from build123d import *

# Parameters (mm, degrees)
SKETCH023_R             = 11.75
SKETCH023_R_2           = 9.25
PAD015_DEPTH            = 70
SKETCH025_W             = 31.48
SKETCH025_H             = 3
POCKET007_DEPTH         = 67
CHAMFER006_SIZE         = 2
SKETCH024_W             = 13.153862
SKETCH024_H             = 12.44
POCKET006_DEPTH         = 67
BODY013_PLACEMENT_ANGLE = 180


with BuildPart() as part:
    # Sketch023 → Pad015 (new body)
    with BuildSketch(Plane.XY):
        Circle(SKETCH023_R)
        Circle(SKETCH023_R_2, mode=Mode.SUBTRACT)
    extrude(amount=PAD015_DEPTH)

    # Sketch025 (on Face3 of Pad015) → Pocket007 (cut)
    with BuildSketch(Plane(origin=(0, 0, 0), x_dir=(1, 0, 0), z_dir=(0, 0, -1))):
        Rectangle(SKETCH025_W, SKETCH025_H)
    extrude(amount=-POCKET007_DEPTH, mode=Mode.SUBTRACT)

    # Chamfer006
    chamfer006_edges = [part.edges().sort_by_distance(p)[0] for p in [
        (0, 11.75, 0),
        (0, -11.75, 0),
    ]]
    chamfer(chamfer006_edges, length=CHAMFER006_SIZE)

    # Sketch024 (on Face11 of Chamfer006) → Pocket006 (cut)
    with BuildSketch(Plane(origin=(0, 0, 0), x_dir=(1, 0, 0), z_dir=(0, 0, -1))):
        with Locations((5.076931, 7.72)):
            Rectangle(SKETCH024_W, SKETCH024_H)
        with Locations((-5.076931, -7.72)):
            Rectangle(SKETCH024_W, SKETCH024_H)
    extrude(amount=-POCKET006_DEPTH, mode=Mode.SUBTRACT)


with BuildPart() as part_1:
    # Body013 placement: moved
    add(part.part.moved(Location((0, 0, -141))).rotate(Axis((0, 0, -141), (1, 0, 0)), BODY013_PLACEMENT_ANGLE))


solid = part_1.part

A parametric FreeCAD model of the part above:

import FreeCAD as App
import Part
import Sketcher


def edges_at(feature, points):
    """Names of the edges that pass closest to the given points."""
    edges = feature.Shape.Edges
    near = lambda p: min(range(len(edges)), key=lambda i: edges[i].distToShape(Part.Vertex(*p))[0])
    return sorted({f"Edge{near(p) + 1}" for p in points})

doc = App.newDocument("Part")
params = doc.addObject("Spreadsheet::Sheet", "Params")
for row, (alias, value) in enumerate([
    ("sketch1_diameter", "23.5 mm"),
    ("sketch1_diameter2", "18.5 mm"),
    ("pad1_length", "70 mm"),
    ("sketch2_height", "3 mm"),
    ("sketch2_width", "31.48 mm"),
    ("pocket1_length", "67 mm"),
    ("chamfer_size", "2 mm"),
    ("sketch3_height", "12.44 mm"),
    ("pocket2_length", "67 mm"),
], start=1):
    params.set(f"A{row}", alias)
    params.set(f"B{row}", "=" + value)
    params.setAlias(f"B{row}", alias)

body = doc.addObject("PartDesign::Body", "Body")

# Sketch on XY plane
sketch1 = body.newObject("Sketcher::SketchObject", "Sketch")
sketch1.AttachmentSupport = (doc.getObject("XY_Plane"), [""])
sketch1.MapMode = "FlatFace"
sketch1.addGeometry(Part.Circle(App.Vector(0, 0, 0), App.Vector(0, 0, 1), 12), False)
sketch1.addGeometry(Part.Circle(App.Vector(0, 0, 0), App.Vector(0, 0, 1), 9), False)
sketch1.addConstraint(Sketcher.Constraint("Coincident", 0, 3, -1, 1))
sketch1.addConstraint(Sketcher.Constraint("Coincident", 1, 3, -1, 1))
sketch1.addConstraint(Sketcher.Constraint("Diameter", 0, 23.5))
sketch1.addConstraint(Sketcher.Constraint("Diameter", 1, 18.5))
sketch1.setExpression("Constraints[2]", "Params.sketch1_diameter")
sketch1.setExpression("Constraints[3]", "Params.sketch1_diameter2")
pad1 = body.newObject("PartDesign::Pad", "Pad")
pad1.Profile = sketch1
pad1.setExpression("Length", "Params.pad1_length")

# Sketch on XY plane
sketch2 = body.newObject("Sketcher::SketchObject", "Sketch001")
sketch2.AttachmentSupport = (doc.getObject("XY_Plane"), [""])
sketch2.MapMode = "FlatFace"
sketch2.addGeometry(Part.LineSegment(App.Vector(-15.7, -1.5, 0), App.Vector(-15.7, 1.5, 0)), False)
sketch2.addGeometry(Part.LineSegment(App.Vector(-15.7, 1.5, 0), App.Vector(15.7, 1.5, 0)), False)
sketch2.addGeometry(Part.LineSegment(App.Vector(15.7, 1.5, 0), App.Vector(15.7, -1.5, 0)), False)
sketch2.addGeometry(Part.LineSegment(App.Vector(15.7, -1.5, 0), App.Vector(-15.7, -1.5, 0)), False)
sketch2.addConstraint(Sketcher.Constraint("Coincident", 0, 2, 1, 1))
sketch2.addConstraint(Sketcher.Constraint("Coincident", 1, 2, 2, 1))
sketch2.addConstraint(Sketcher.Constraint("Coincident", 2, 2, 3, 1))
sketch2.addConstraint(Sketcher.Constraint("Coincident", 3, 2, 0, 1))
sketch2.addConstraint(Sketcher.Constraint("Vertical", 0))
sketch2.addConstraint(Sketcher.Constraint("Horizontal", 1))
sketch2.addConstraint(Sketcher.Constraint("Vertical", 2))
sketch2.addConstraint(Sketcher.Constraint("Horizontal", 3))
sketch2.addConstraint(Sketcher.Constraint("Symmetric", 0, 2, 2, 2, -1, 1))
sketch2.addConstraint(Sketcher.Constraint("DistanceY", 0, 1, 0, 2, 3.0))
sketch2.addConstraint(Sketcher.Constraint("DistanceX", 1, 1, 1, 2, 31.48))
sketch2.setExpression("Constraints[9]", "Params.sketch2_height")
sketch2.setExpression("Constraints[10]", "Params.sketch2_width")
pocket1 = body.newObject("PartDesign::Pocket", "Pocket")
pocket1.Profile = sketch2
pocket1.setExpression("Length", "Params.pocket1_length")
pocket1.Reversed = True
doc.recompute()

chamfer = body.newObject("PartDesign::Chamfer", "Chamfer")
chamfer.Base = (pocket1, edges_at(pocket1, [(0, 11.75, 0), (0, -11.75, 0)]))
chamfer.setExpression("Size", "Params.chamfer_size")

# Sketch on XY plane
sketch3 = body.newObject("Sketcher::SketchObject", "Sketch002")
sketch3.AttachmentSupport = (doc.getObject("XY_Plane"), [""])
sketch3.MapMode = "FlatFace"
sketch3.addGeometry(Part.LineSegment(App.Vector(-2, -14, 0), App.Vector(-2, -2, 0)), False)
sketch3.addGeometry(Part.LineSegment(App.Vector(-2, -2, 0), App.Vector(12, -2, 0)), False)
sketch3.addGeometry(Part.LineSegment(App.Vector(12, -2, 0), App.Vector(12, -14, 0)), False)
sketch3.addGeometry(Part.LineSegment(App.Vector(12, -14, 0), App.Vector(-2, -14, 0)), False)
sketch3.addGeometry(Part.LineSegment(App.Vector(-12, 2, 0), App.Vector(-12, 14, 0)), False)
sketch3.addGeometry(Part.LineSegment(App.Vector(-12, 14, 0), App.Vector(2, 14, 0)), False)
sketch3.addGeometry(Part.LineSegment(App.Vector(2, 14, 0), App.Vector(2, 2, 0)), False)
sketch3.addGeometry(Part.LineSegment(App.Vector(2, 2, 0), App.Vector(-12, 2, 0)), False)
sketch3.addConstraint(Sketcher.Constraint("Coincident", 0, 2, 1, 1))
sketch3.addConstraint(Sketcher.Constraint("Coincident", 1, 2, 2, 1))
sketch3.addConstraint(Sketcher.Constraint("Coincident", 2, 2, 3, 1))
sketch3.addConstraint(Sketcher.Constraint("Coincident", 3, 2, 0, 1))
sketch3.addConstraint(Sketcher.Constraint("Coincident", 4, 2, 5, 1))
sketch3.addConstraint(Sketcher.Constraint("Coincident", 5, 2, 6, 1))
sketch3.addConstraint(Sketcher.Constraint("Coincident", 6, 2, 7, 1))
sketch3.addConstraint(Sketcher.Constraint("Coincident", 7, 2, 4, 1))
sketch3.addConstraint(Sketcher.Constraint("Vertical", 0))
sketch3.addConstraint(Sketcher.Constraint("Horizontal", 1))
sketch3.addConstraint(Sketcher.Constraint("Vertical", 2))
sketch3.addConstraint(Sketcher.Constraint("Horizontal", 3))
sketch3.addConstraint(Sketcher.Constraint("Vertical", 4))
sketch3.addConstraint(Sketcher.Constraint("Horizontal", 5))
sketch3.addConstraint(Sketcher.Constraint("Vertical", 6))
sketch3.addConstraint(Sketcher.Constraint("Horizontal", 7))
sketch3.addConstraint(Sketcher.Constraint("Symmetric", 2, 2, 4, 2, -1, 1))
sketch3.addConstraint(Sketcher.Constraint("Symmetric", 0, 2, 6, 2, -1, 1))
sketch3.addConstraint(Sketcher.Constraint("DistanceX", 0, 2, 5, 2, 3.0))
sketch3.addConstraint(Sketcher.Constraint("DistanceY", 0, 2, 6, 2, 3.0))
sketch3.addConstraint(Sketcher.Constraint("DistanceY", 0, 1, 0, 2, 12.44))
sketch3.addConstraint(Sketcher.Constraint("DistanceX", 1, 1, 1, 2, 13.153862))
sketch3.setExpression("Constraints[20]", "Params.sketch3_height")
pocket2 = body.newObject("PartDesign::Pocket", "Pocket001")
pocket2.Profile = sketch3
pocket2.setExpression("Length", "Params.pocket2_length")
pocket2.Reversed = True
body2 = doc.addObject("PartDesign::Body", "Body001")
doc.recompute()

body.Placement = App.Placement(App.Vector(0, 0, -141), App.Rotation(App.Vector(1, 0, 0), 180))
boolean = body2.newObject("PartDesign::Boolean", "Boolean")
boolean.Type = "Fuse"
boolean.addObjects([body])

doc.recompute()
